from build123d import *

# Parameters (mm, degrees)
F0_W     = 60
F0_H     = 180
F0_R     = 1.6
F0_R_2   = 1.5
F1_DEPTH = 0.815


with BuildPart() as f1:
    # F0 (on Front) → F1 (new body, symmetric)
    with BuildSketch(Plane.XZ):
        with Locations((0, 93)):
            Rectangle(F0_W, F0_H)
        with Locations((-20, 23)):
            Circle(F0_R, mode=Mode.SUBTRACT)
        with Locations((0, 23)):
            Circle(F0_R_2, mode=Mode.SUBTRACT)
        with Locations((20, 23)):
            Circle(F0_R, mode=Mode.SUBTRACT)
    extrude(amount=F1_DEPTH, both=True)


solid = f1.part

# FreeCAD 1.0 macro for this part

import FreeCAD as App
import Part
import Sketcher

doc = App.newDocument("Part")
body = doc.addObject("PartDesign::Body", "Body")

# Sketch on XZ plane
sketch1 = body.newObject("Sketcher::SketchObject", "Sketch")
sketch1.AttachmentSupport = (doc.getObject("XZ_Plane"), [""])
sketch1.MapMode = "FlatFace"
sketch1.addGeometry(Part.LineSegment(App.Vector(-30, 183, 0), App.Vector(-30, 3, 0)), False)
sketch1.addGeometry(Part.LineSegment(App.Vector(-30, 3, 0), App.Vector(30, 3, 0)), False)
sketch1.addGeometry(Part.LineSegment(App.Vector(30, 3, 0), App.Vector(30, 183, 0)), False)
sketch1.addGeometry(Part.LineSegment(App.Vector(30, 183, 0), App.Vector(-30, 183, 0)), False)
sketch1.addGeometry(Part.Circle(App.Vector(-20, 23, 0), App.Vector(0, 0, 1), 1.6), False)
sketch1.addGeometry(Part.Circle(App.Vector(0, 23, 0), App.Vector(0, 0, 1), 1.5), False)
sketch1.addGeometry(Part.Circle(App.Vector(20, 23, 0), App.Vector(0, 0, 1), 1.6), False)
sketch1.addConstraint(Sketcher.Constraint("Coincident", 0, 2, 1, 1))
sketch1.addConstraint(Sketcher.Constraint("Coincident", 1, 2, 2, 1))
sketch1.addConstraint(Sketcher.Constraint("Coincident", 2, 2, 3, 1))
sketch1.addConstraint(Sketcher.Constraint("Coincident", 3, 2, 0, 1))
sketch1.addConstraint(Sketcher.Constraint("Vertical", 0))
sketch1.addConstraint(Sketcher.Constraint("Horizontal", 1))
sketch1.addConstraint(Sketcher.Constraint("Vertical", 2))
sketch1.addConstraint(Sketcher.Constraint("Horizontal", 3))
sketch1.addConstraint(Sketcher.Constraint("Equal", 4, 6))
sketch1.addConstraint(Sketcher.Constraint("Symmetric", 4, 3, 6, 3, -2))
sketch1.addConstraint(Sketcher.Constraint("PointOnObject", 5, 3, -2))
sketch1.addConstraint(Sketcher.Constraint("Horizontal", 4, 3, 5, 3))
sketch1.addConstraint(Sketcher.Constraint("Diameter", 5, 3.0))
sketch1.addConstraint(Sketcher.Constraint("Diameter", 4, 3.2))
sketch1.addConstraint(Sketcher.Constraint("DistanceX", 1, 1, 1, 2, 60.0))
sketch1.addConstraint(Sketcher.Constraint("DistanceY", 0, 2, 0, 1, 180.0))
sketch1.addConstraint(Sketcher.Constraint("DistanceX", 4, 3, -1, 1, 20.0))
sketch1.addConstraint(Sketcher.Constraint("DistanceY", -1, 1, 4, 3, 23.0))
sketch1.addConstraint(Sketcher.Constraint("DistanceX", 0, 2, -1, 1, 30.0))
sketch1.addConstraint(Sketcher.Constraint("DistanceY", -1, 1, 0, 2, 3.0))
pad1 = body.newObject("PartDesign::Pad", "Pad")
pad1.Profile = sketch1
pad1.Length = 1.63
pad1.Midplane = True

doc.recompute()
